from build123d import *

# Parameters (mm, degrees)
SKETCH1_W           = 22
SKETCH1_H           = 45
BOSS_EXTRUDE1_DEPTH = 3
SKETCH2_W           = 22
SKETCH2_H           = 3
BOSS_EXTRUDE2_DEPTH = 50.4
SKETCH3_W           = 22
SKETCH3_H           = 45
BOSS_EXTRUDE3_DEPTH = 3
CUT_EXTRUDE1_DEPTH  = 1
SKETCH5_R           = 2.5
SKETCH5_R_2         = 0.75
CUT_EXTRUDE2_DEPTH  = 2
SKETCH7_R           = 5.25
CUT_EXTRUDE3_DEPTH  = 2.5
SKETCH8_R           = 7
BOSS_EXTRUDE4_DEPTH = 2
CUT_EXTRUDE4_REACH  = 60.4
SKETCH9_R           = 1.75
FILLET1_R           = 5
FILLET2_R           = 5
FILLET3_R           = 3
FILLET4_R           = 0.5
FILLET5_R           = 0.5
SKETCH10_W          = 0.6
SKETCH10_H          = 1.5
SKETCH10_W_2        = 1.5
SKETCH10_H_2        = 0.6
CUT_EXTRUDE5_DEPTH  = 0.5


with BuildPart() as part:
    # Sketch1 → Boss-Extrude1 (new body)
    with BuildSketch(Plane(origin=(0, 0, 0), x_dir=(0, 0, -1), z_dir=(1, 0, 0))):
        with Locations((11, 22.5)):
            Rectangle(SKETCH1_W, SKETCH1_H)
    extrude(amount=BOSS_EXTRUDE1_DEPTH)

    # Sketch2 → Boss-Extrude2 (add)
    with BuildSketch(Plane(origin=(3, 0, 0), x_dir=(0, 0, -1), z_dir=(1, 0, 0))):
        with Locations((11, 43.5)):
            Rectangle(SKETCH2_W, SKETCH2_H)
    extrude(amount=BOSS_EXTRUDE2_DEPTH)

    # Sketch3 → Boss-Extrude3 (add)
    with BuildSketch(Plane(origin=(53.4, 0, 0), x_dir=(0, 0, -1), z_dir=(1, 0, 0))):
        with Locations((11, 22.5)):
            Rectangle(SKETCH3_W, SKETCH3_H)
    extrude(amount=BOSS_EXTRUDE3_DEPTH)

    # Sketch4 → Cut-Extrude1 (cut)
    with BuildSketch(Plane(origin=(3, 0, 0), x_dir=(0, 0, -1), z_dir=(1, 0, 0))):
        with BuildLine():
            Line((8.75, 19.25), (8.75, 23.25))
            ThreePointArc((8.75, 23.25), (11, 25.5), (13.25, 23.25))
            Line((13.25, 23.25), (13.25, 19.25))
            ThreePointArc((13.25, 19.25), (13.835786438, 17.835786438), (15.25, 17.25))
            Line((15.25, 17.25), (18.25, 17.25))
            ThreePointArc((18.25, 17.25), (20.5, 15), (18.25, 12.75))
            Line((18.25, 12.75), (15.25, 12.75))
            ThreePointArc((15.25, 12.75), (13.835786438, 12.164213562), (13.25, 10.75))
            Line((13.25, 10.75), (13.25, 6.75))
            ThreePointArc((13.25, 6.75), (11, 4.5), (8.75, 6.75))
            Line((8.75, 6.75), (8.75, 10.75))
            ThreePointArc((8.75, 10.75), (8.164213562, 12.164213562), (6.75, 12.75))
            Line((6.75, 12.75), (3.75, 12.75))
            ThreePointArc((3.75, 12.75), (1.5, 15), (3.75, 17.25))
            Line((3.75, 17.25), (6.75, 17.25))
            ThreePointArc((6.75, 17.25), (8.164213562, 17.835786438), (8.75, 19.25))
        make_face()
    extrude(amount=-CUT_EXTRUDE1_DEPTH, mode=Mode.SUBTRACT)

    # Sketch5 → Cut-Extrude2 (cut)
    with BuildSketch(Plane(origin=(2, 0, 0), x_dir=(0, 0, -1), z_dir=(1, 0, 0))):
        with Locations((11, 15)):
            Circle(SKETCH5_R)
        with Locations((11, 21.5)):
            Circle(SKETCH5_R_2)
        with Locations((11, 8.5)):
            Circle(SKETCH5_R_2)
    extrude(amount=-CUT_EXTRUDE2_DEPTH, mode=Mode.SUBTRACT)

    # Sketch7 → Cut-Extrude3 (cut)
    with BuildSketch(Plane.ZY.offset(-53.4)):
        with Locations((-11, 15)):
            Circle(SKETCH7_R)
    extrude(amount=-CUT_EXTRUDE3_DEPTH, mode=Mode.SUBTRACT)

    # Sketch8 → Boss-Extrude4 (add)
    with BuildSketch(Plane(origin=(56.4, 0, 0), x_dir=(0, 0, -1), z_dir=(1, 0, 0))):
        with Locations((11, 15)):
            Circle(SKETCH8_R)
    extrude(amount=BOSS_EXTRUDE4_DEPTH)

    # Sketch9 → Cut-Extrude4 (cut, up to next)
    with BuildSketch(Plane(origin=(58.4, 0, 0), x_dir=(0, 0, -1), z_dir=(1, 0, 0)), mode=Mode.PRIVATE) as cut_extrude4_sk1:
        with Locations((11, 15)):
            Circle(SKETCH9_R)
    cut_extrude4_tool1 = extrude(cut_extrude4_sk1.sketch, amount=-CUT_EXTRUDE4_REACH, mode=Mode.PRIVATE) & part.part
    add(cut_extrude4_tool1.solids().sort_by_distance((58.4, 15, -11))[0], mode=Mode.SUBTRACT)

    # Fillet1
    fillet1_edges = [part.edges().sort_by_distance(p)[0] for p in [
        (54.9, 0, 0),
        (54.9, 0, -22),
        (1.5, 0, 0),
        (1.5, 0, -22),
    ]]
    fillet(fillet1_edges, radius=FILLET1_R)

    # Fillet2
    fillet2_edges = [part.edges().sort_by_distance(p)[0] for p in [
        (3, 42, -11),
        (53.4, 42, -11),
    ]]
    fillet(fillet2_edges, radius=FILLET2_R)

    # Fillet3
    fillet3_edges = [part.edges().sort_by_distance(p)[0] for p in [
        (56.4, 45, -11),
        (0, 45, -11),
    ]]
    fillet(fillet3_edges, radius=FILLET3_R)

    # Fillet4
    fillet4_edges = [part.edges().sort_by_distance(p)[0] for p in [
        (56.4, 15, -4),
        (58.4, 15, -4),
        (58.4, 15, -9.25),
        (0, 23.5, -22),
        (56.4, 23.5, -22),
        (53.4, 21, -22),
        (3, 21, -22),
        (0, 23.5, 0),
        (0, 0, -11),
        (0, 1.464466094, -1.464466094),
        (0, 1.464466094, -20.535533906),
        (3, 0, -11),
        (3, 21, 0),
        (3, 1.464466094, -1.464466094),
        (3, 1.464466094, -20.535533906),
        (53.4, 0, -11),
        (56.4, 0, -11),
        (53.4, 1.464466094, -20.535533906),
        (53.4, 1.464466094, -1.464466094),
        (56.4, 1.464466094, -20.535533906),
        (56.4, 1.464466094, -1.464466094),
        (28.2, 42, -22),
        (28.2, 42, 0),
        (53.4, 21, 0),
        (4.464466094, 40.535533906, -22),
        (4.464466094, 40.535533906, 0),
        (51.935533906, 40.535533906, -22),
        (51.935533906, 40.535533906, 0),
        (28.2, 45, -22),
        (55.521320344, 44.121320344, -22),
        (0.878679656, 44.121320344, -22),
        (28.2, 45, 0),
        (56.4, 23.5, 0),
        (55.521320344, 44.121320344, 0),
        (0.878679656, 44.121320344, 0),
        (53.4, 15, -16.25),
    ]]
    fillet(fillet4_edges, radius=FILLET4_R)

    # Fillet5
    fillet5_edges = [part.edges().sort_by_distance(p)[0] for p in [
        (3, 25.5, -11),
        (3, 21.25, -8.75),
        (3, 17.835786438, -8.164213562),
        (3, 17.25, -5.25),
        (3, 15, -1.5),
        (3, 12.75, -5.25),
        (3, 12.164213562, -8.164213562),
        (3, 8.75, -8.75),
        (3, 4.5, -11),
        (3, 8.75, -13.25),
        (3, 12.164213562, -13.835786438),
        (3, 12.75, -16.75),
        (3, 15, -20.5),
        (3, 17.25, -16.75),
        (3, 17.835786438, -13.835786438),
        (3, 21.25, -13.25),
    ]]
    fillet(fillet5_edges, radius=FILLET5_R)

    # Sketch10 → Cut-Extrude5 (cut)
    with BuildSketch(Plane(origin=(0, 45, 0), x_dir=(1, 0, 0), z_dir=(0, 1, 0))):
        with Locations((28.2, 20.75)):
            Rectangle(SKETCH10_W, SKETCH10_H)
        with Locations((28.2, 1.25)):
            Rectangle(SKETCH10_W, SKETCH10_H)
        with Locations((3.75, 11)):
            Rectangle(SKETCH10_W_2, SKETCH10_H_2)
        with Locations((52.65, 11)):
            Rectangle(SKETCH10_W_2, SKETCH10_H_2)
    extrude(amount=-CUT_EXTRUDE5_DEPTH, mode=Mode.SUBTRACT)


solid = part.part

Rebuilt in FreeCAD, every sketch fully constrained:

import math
import FreeCAD as App
import Part
import Sketcher
from FreeCAD import Vector


def edges_at(feature, points):
    """Names of the edges that pass closest to the given points."""
    edges = feature.Shape.Edges
    near = lambda p: min(range(len(edges)), key=lambda i: edges[i].distToShape(Part.Vertex(*p))[0])
    return sorted({f"Edge{near(p) + 1}" for p in points})


def add_polygon(sketch, points):
    """Adds a closed chain of lines whose ends are joined by coincident constraints."""
    first, n = sketch.GeometryCount, len(points)
    for a, b in zip(points, points[1:] + points[:1]):
        sketch.addGeometry(Part.LineSegment(App.Vector(*a, 0), App.Vector(*b, 0)), False)
    for i in range(n):
        sketch.addConstraint(Sketcher.Constraint("Coincident", first + i, 2, first + (i + 1) % n, 1))

doc = App.newDocument("Part")
body = doc.addObject("PartDesign::Body", "Body")

# Sketch on YZ plane
sketch1 = body.newObject("Sketcher::SketchObject", "Sketch")
sketch1.AttachmentSupport = (doc.getObject("YZ_Plane"), [""])
sketch1.MapMode = "FlatFace"
add_polygon(sketch1, [(45, 0), (0, 0), (0, -22), (45, -22)])  # lines 0-3
sketch1.addConstraint([
    Sketcher.Constraint("Horizontal", 0),
    Sketcher.Constraint("Vertical", 1),
    Sketcher.Constraint("Horizontal", 2),
    Sketcher.Constraint("Vertical", 3),
    Sketcher.Constraint("Coincident", 0, 2, -1, 1),
    Sketcher.Constraint("DistanceX", 0, 2, 0, 1, 45.0),
    Sketcher.Constraint("DistanceY", 1, 2, 1, 1, 22.0),
])
pad1 = body.newObject("PartDesign::Pad", "Pad")
pad1.Profile = sketch1
pad1.Length = 3

# Sketch on YZ plane
sketch2 = body.newObject("Sketcher::SketchObject", "Sketch001")
sketch2.AttachmentSupport = (doc.getObject("YZ_Plane"), [""])
sketch2.MapMode = "FlatFace"
sketch2.AttachmentOffset = App.Placement(Vector(0, 0, 3), App.Rotation())
add_polygon(sketch2, [(45, 0), (42, 0), (42, -22), (45, -22)])  # lines 0-3
sketch2.addConstraint([
    Sketcher.Constraint("Horizontal", 0),
    Sketcher.Constraint("Vertical", 1),
    Sketcher.Constraint("Horizontal", 2),
    Sketcher.Constraint("Vertical", 3),
    Sketcher.Constraint("PointOnObject", 0, 2, -1),
    Sketcher.Constraint("DistanceX", 0, 2, 0, 1, 3.0),
    Sketcher.Constraint("DistanceY", 1, 2, 1, 1, 22.0),
    Sketcher.Constraint("DistanceX", -1, 1, 0, 2, 42.0),
])
pad2 = body.newObject("PartDesign::Pad", "Pad001")
pad2.Profile = sketch2
pad2.Length = 50.4

# Sketch on YZ plane
sketch3 = body.newObject("Sketcher::SketchObject", "Sketch002")
sketch3.AttachmentSupport = (doc.getObject("YZ_Plane"), [""])
sketch3.MapMode = "FlatFace"
sketch3.AttachmentOffset = App.Placement(Vector(0, 0, 53.4), App.Rotation())
add_polygon(sketch3, [(45, 0), (0, 0), (0, -22), (45, -22)])  # lines 0-3
sketch3.addConstraint([
    Sketcher.Constraint("Horizontal", 0),
    Sketcher.Constraint("Vertical", 1),
    Sketcher.Constraint("Horizontal", 2),
    Sketcher.Constraint("Vertical", 3),
    Sketcher.Constraint("Coincident", 0, 2, -1, 1),
    Sketcher.Constraint("DistanceX", 0, 2, 0, 1, 45.0),
    Sketcher.Constraint("DistanceY", 1, 2, 1, 1, 22.0),
])
pad3 = body.newObject("PartDesign::Pad", "Pad002")
pad3.Profile = sketch3
pad3.Length = 3

# Sketch on YZ plane
sketch4 = body.newObject("Sketcher::SketchObject", "Sketch003")
sketch4.AttachmentSupport = (doc.getObject("YZ_Plane"), [""])
sketch4.MapMode = "FlatFace"
sketch4.AttachmentOffset = App.Placement(Vector(0, 0, 3), App.Rotation())
sketch4.addGeometry([
    Part.LineSegment(Vector(23.2, -8.8, 0), Vector(19.2, -8.8, 0)),  # 0
    Part.ArcOfCircle(Part.Circle(Vector(19.3, -6.7, 0), Vector(0, 0, 1), 2), math.radians(-180), math.radians(-90)),  # 1
    Part.LineSegment(Vector(17.2, -6.8, 0), Vector(17.2, -3.8, 0)),  # 2
    Part.ArcOfCircle(Part.Circle(Vector(15, -3.8, 0), Vector(0, 0, 1), 2.2), math.radians(0), math.radians(180)),  # 3
    Part.LineSegment(Vector(12.8, -3.8, 0), Vector(12.8, -6.8, 0)),  # 4
    Part.ArcOfCircle(Part.Circle(Vector(10.7, -6.7, 0), Vector(0, 0, 1), 2), math.radians(-90), math.radians(0)),  # 5
    Part.LineSegment(Vector(10.8, -8.8, 0), Vector(6.8, -8.8, 0)),  # 6
    Part.ArcOfCircle(Part.Circle(Vector(6.8, -11, 0), Vector(0, 0, 1), 2.2), math.radians(90), math.radians(270)),  # 7
    Part.LineSegment(Vector(6.8, -13.2, 0), Vector(10.8, -13.2, 0)),  # 8
    Part.ArcOfCircle(Part.Circle(Vector(10.7, -15.3, 0), Vector(0, 0, 1), 2), math.radians(0), math.radians(90)),  # 9
    Part.LineSegment(Vector(12.8, -15.2, 0), Vector(12.8, -18.2, 0)),  # 10
    Part.ArcOfCircle(Part.Circle(Vector(15, -18.2, 0), Vector(0, 0, 1), 2.2), math.radians(180), math.radians(360)),  # 11
    Part.LineSegment(Vector(17.2, -18.2, 0), Vector(17.2, -15.2, 0)),  # 12
    Part.ArcOfCircle(Part.Circle(Vector(19.3, -15.3, 0), Vector(0, 0, 1), 2), math.radians(90), math.radians(180)),  # 13
    Part.LineSegment(Vector(19.2, -13.2, 0), Vector(23.2, -13.2, 0)),  # 14
    Part.ArcOfCircle(Part.Circle(Vector(23.2, -11, 0), Vector(0, 0, 1), 2.2), math.radians(-90), math.radians(90)),  # 15
], False)
sketch4.addConstraint([
    Sketcher.Constraint("Tangent", 0, 2, 1, 2),
    Sketcher.Constraint("Tangent", 1, 1, 2, 1),
    Sketcher.Constraint("Tangent", 2, 2, 3, 1),
    Sketcher.Constraint("Tangent", 3, 2, 4, 1),
    Sketcher.Constraint("Tangent", 4, 2, 5, 2),
    Sketcher.Constraint("Tangent", 5, 1, 6, 1),
    Sketcher.Constraint("Tangent", 6, 2, 7, 1),
    Sketcher.Constraint("Tangent", 7, 2, 8, 1),
    Sketcher.Constraint("Tangent", 8, 2, 9, 2),
    Sketcher.Constraint("Tangent", 9, 1, 10, 1),
    Sketcher.Constraint("Tangent", 10, 2, 11, 1),
    Sketcher.Constraint("Tangent", 11, 2, 12, 1),
    Sketcher.Constraint("Tangent", 12, 2, 13, 2),
    Sketcher.Constraint("Tangent", 13, 1, 14, 1),
    Sketcher.Constraint("Tangent", 14, 2, 15, 1),
    Sketcher.Constraint("Tangent", 15, 2, 0, 1),
    Sketcher.Constraint("Horizontal", 0),
    Sketcher.Constraint("Vertical", 2),
    Sketcher.Constraint("Vertical", 4),
    Sketcher.Constraint("Horizontal", 6),
    Sketcher.Constraint("Horizontal", 8),
    Sketcher.Constraint("Vertical", 10),
    Sketcher.Constraint("Vertical", 12),
    Sketcher.Constraint("Horizontal", 14),
    Sketcher.Constraint("Equal", 1, 5),
    Sketcher.Constraint("Equal", 3, 7),
    Sketcher.Constraint("Equal", 5, 9),
    Sketcher.Constraint("Equal", 7, 11),
    Sketcher.Constraint("Equal", 9, 13),
    Sketcher.Constraint("Equal", 11, 15),
    Sketcher.Constraint("Horizontal", 1, 3, 5, 3),
    Sketcher.Constraint("Vertical", 5, 3, 9, 3),
    Sketcher.Constraint("Equal", 0, 6),
    Sketcher.Constraint("Equal", 4, 10),
    Sketcher.Constraint("Radius", 1, 2.0),
    Sketcher.Constraint("DistanceX", 0, 2, 0, 1, 4.0),
    Sketcher.Constraint("DistanceY", 2, 1, 2, 2, 3.0),
    Sketcher.Constraint("Radius", 3, 2.25),
    Sketcher.Constraint("DistanceX", -1, 1, 3, 3, 15.0),
    Sketcher.Constraint("DistanceY", 7, 3, -1, 1, 11.0),
])
pocket1 = body.newObject("PartDesign::Pocket", "Pocket")
pocket1.Profile = sketch4
pocket1.Length = 1

# Sketch on YZ plane
sketch5 = body.newObject("Sketcher::SketchObject", "Sketch004")
sketch5.AttachmentSupport = (doc.getObject("YZ_Plane"), [""])
sketch5.MapMode = "FlatFace"
sketch5.AttachmentOffset = App.Placement(Vector(0, 0, 2), App.Rotation())
sketch5.addGeometry([
    Part.Circle(Vector(15, -11, 0), Vector(0, 0, 1), 2.5),
    Part.Circle(Vector(21.5, -11, 0), Vector(0, 0, 1), 0.8),
    Part.Circle(Vector(8.5, -11, 0), Vector(0, 0, 1), 0.8),
], False)
sketch5.addConstraint([
    Sketcher.Constraint("Equal", 1, 2),
    Sketcher.Constraint("Horizontal", 0, 3, 1, 3),
    Sketcher.Constraint("Horizontal", 1, 3, 2, 3),
    Sketcher.Constraint("Diameter", 0, 5.0),
    Sketcher.Constraint("Diameter", 1, 1.5),
    Sketcher.Constraint("DistanceX", -1, 1, 0, 3, 15.0),
    Sketcher.Constraint("DistanceY", 0, 3, -1, 1, 11.0),
    Sketcher.Constraint("DistanceX", 2, 3, 1, 3, 13.0),
    Sketcher.Constraint("DistanceX", -1, 1, 1, 3, 21.5),
])
pocket2 = body.newObject("PartDesign::Pocket", "Pocket001")
pocket2.Profile = sketch5
pocket2.Length = 2

# Sketch on YZ plane
sketch6 = body.newObject("Sketcher::SketchObject", "Sketch005")
sketch6.AttachmentSupport = (doc.getObject("YZ_Plane"), [""])
sketch6.MapMode = "FlatFace"
sketch6.AttachmentOffset = App.Placement(Vector(0, 0, 53.4), App.Rotation())
sketch6.addGeometry(Part.Circle(Vector(15, -11, 0), Vector(0, 0, 1), 5), False)
sketch6.addConstraint([
    Sketcher.Constraint("Diameter", 0, 10.5),
    Sketcher.Constraint("DistanceX", -1, 1, 0, 3, 15.0),
    Sketcher.Constraint("DistanceY", 0, 3, -1, 1, 11.0),
])
pocket3 = body.newObject("PartDesign::Pocket", "Pocket002")
pocket3.Profile = sketch6
pocket3.Length = 2.5
pocket3.Reversed = True

# Sketch on YZ plane
sketch7 = body.newObject("Sketcher::SketchObject", "Sketch006")
sketch7.AttachmentSupport = (doc.getObject("YZ_Plane"), [""])
sketch7.MapMode = "FlatFace"
sketch7.AttachmentOffset = App.Placement(Vector(0, 0, 56.4), App.Rotation())
sketch7.addGeometry(Part.Circle(Vector(15, -11, 0), Vector(0, 0, 1), 7), False)
sketch7.addConstraint([
    Sketcher.Constraint("Diameter", 0, 14.0),
    Sketcher.Constraint("DistanceX", -1, 1, 0, 3, 15.0),
    Sketcher.Constraint("DistanceY", 0, 3, -1, 1, 11.0),
])
pad4 = body.newObject("PartDesign::Pad", "Pad003")
pad4.Profile = sketch7
pad4.Length = 2

# Sketch on YZ plane
sketch8 = body.newObject("Sketcher::SketchObject", "Sketch007")
sketch8.AttachmentSupport = (doc.getObject("YZ_Plane"), [""])
sketch8.MapMode = "FlatFace"
sketch8.AttachmentOffset = App.Placement(Vector(0, 0, 58.4), App.Rotation())
sketch8.addGeometry(Part.Circle(Vector(15, -11, 0), Vector(0, 0, 1), 1.8), False)
sketch8.addConstraint([
    Sketcher.Constraint("Diameter", 0, 3.5),
    Sketcher.Constraint("DistanceX", -1, 1, 0, 3, 15.0),
    Sketcher.Constraint("DistanceY", 0, 3, -1, 1, 11.0),
])
pocket4 = body.newObject("PartDesign::Pocket", "Pocket003")
pocket4.Profile = sketch8
pocket4.Type = "UpToFirst"
doc.recompute()

fillet = body.newObject("PartDesign::Fillet", "Fillet")
fillet.Base = (pocket4, edges_at(pocket4, [
    (54.9, 0, 0),
    (54.9, 0, -22),
    (1.5, 0, 0),
    (1.5, 0, -22),
]))
fillet.Radius = 5
doc.recompute()

fillet2 = body.newObject("PartDesign::Fillet", "Fillet001")
fillet2.Base = (fillet, edges_at(fillet, [(3, 42, -11), (53.4, 42, -11)]))
fillet2.Radius = 5
doc.recompute()

fillet3 = body.newObject("PartDesign::Fillet", "Fillet002")
fillet3.Base = (fillet2, edges_at(fillet2, [(56.4, 45, -11), (0, 45, -11)]))
fillet3.Radius = 3
doc.recompute()

fillet4 = body.newObject("PartDesign::Fillet", "Fillet003")
fillet4.Base = (fillet3, edges_at(fillet3, [
    (56.4, 15, -4),
    (58.4, 15, -4),
    (58.4, 15, -9.25),
    (0, 23.5, -22),
    (56.4, 23.5, -22),
    (53.4, 21, -22),
    (3, 21, -22),
    (0, 23.5, 0),
    (0, 0, -11),
    (0, 1.464, -1.464),
    (0, 1.464, -20.536),
    (3, 0, -11),
    (3, 21, 0),
    (3, 1.464, -1.464),
    (3, 1.464, -20.536),
    (53.4, 0, -11),
    (56.4, 0, -11),
    (53.4, 1.464, -20.536),
    (53.4, 1.464, -1.464),
    (56.4, 1.464, -20.536),
    (56.4, 1.464, -1.464),
    (28.2, 42, -22),
    (28.2, 42, 0),
    (53.4, 21, 0),
    (4.464, 40.536, -22),
    (4.464, 40.536, 0),
    (51.936, 40.536, -22),
    (51.936, 40.536, 0),
    (28.2, 45, -22),
    (55.521, 44.121, -22),
    (0.879, 44.121, -22),
    (28.2, 45, 0),
    (56.4, 23.5, 0),
    (55.521, 44.121, 0),
    (0.879, 44.121, 0),
    (53.4, 15, -16.25),
]))
fillet4.Radius = 0.5
doc.recompute()

fillet5 = body.newObject("PartDesign::Fillet", "Fillet004")
fillet5.Base = (fillet4, edges_at(fillet4, [
    (3, 25.5, -11),
    (3, 21.25, -8.75),
    (3, 17.836, -8.164),
    (3, 17.25, -5.25),
    (3, 15, -1.5),
    (3, 12.75, -5.25),
    (3, 12.164, -8.164),
    (3, 8.75, -8.75),
    (3, 4.5, -11),
    (3, 8.75, -13.25),
    (3, 12.164, -13.836),
    (3, 12.75, -16.75),
    (3, 15, -20.5),
    (3, 17.25, -16.75),
    (3, 17.836, -13.836),
    (3, 21.25, -13.25),
]))
fillet5.Radius = 0.5

# Sketch on XZ plane
sketch9 = body.newObject("Sketcher::SketchObject", "Sketch008")
sketch9.AttachmentSupport = (doc.getObject("XZ_Plane"), [""])
sketch9.MapMode = "FlatFace"
sketch9.AttachmentOffset = App.Placement(Vector(0, 0, -45), App.Rotation())
add_polygon(sketch9, [(27.9, -21.5), (27.9, -20), (28.5, -20), (28.5, -21.5)])  # lines 0-3
add_polygon(sketch9, [(27.9, -2), (27.9, -0.5), (28.5, -0.5), (28.5, -2)])  # lines 4-7
add_polygon(sketch9, [(3, -11.3), (3, -10.7), (4.5, -10.7), (4.5, -11.3)])  # lines 8-11
add_polygon(sketch9, [(51.9, -11.3), (51.9, -10.7), (53.4, -10.7), (53.4, -11.3)])  # lines 12-15
sketch9.addConstraint([
    Sketcher.Constraint("Vertical", 0),
    Sketcher.Constraint("Horizontal", 1),
    Sketcher.Constraint("Vertical", 2),
    Sketcher.Constraint("Horizontal", 3),
    Sketcher.Constraint("Vertical", 4),
    Sketcher.Constraint("Horizontal", 5),
    Sketcher.Constraint("Vertical", 6),
    Sketcher.Constraint("Horizontal", 7),
    Sketcher.Constraint("Vertical", 8),
    Sketcher.Constraint("Horizontal", 9),
    Sketcher.Constraint("Vertical", 10),
    Sketcher.Constraint("Horizontal", 11),
    Sketcher.Constraint("Vertical", 12),
    Sketcher.Constraint("Horizontal", 13),
    Sketcher.Constraint("Vertical", 14),
    Sketcher.Constraint("Horizontal", 15),
    Sketcher.Constraint("Horizontal", 9, 2, 12, 2),
    Sketcher.Constraint("Horizontal", 11, 2, 14, 2),
    Sketcher.Constraint("Vertical", 3, 2, 4, 2),
    Sketcher.Constraint("Vertical", 2, 2, 5, 2),
    Sketcher.Constraint("Equal", 11, 13),
    Sketcher.Constraint("Equal", 15, 0),
    Sketcher.Constraint("Equal", 2, 4),
    Sketcher.Constraint("Equal", 7, 8),
    Sketcher.Constraint("DistanceX", 1, 1, 1, 2, 0.6),
    Sketcher.Constraint("DistanceX", 9, 1, 9, 2, 1.5),
    Sketcher.Constraint("DistanceY", 0, 2, -1, 1, 20.0),
    Sketcher.Constraint("DistanceY", 6, 2, -1, 1, 2.0),
    Sketcher.Constraint("DistanceX", -1, 1, 8, 2, 3.0),
    Sketcher.Constraint("DistanceX", 9, 2, 6, 2, 24.0),
    Sketcher.Constraint("DistanceX", 7, 2, 12, 2, 24.0),
    Sketcher.Constraint("DistanceY", 8, 2, -1, 1, 10.7),
])
pocket5 = body.newObject("PartDesign::Pocket", "Pocket004")
pocket5.Profile = sketch9
pocket5.Length = 0.5
pocket5.Reversed = True

doc.recompute()
